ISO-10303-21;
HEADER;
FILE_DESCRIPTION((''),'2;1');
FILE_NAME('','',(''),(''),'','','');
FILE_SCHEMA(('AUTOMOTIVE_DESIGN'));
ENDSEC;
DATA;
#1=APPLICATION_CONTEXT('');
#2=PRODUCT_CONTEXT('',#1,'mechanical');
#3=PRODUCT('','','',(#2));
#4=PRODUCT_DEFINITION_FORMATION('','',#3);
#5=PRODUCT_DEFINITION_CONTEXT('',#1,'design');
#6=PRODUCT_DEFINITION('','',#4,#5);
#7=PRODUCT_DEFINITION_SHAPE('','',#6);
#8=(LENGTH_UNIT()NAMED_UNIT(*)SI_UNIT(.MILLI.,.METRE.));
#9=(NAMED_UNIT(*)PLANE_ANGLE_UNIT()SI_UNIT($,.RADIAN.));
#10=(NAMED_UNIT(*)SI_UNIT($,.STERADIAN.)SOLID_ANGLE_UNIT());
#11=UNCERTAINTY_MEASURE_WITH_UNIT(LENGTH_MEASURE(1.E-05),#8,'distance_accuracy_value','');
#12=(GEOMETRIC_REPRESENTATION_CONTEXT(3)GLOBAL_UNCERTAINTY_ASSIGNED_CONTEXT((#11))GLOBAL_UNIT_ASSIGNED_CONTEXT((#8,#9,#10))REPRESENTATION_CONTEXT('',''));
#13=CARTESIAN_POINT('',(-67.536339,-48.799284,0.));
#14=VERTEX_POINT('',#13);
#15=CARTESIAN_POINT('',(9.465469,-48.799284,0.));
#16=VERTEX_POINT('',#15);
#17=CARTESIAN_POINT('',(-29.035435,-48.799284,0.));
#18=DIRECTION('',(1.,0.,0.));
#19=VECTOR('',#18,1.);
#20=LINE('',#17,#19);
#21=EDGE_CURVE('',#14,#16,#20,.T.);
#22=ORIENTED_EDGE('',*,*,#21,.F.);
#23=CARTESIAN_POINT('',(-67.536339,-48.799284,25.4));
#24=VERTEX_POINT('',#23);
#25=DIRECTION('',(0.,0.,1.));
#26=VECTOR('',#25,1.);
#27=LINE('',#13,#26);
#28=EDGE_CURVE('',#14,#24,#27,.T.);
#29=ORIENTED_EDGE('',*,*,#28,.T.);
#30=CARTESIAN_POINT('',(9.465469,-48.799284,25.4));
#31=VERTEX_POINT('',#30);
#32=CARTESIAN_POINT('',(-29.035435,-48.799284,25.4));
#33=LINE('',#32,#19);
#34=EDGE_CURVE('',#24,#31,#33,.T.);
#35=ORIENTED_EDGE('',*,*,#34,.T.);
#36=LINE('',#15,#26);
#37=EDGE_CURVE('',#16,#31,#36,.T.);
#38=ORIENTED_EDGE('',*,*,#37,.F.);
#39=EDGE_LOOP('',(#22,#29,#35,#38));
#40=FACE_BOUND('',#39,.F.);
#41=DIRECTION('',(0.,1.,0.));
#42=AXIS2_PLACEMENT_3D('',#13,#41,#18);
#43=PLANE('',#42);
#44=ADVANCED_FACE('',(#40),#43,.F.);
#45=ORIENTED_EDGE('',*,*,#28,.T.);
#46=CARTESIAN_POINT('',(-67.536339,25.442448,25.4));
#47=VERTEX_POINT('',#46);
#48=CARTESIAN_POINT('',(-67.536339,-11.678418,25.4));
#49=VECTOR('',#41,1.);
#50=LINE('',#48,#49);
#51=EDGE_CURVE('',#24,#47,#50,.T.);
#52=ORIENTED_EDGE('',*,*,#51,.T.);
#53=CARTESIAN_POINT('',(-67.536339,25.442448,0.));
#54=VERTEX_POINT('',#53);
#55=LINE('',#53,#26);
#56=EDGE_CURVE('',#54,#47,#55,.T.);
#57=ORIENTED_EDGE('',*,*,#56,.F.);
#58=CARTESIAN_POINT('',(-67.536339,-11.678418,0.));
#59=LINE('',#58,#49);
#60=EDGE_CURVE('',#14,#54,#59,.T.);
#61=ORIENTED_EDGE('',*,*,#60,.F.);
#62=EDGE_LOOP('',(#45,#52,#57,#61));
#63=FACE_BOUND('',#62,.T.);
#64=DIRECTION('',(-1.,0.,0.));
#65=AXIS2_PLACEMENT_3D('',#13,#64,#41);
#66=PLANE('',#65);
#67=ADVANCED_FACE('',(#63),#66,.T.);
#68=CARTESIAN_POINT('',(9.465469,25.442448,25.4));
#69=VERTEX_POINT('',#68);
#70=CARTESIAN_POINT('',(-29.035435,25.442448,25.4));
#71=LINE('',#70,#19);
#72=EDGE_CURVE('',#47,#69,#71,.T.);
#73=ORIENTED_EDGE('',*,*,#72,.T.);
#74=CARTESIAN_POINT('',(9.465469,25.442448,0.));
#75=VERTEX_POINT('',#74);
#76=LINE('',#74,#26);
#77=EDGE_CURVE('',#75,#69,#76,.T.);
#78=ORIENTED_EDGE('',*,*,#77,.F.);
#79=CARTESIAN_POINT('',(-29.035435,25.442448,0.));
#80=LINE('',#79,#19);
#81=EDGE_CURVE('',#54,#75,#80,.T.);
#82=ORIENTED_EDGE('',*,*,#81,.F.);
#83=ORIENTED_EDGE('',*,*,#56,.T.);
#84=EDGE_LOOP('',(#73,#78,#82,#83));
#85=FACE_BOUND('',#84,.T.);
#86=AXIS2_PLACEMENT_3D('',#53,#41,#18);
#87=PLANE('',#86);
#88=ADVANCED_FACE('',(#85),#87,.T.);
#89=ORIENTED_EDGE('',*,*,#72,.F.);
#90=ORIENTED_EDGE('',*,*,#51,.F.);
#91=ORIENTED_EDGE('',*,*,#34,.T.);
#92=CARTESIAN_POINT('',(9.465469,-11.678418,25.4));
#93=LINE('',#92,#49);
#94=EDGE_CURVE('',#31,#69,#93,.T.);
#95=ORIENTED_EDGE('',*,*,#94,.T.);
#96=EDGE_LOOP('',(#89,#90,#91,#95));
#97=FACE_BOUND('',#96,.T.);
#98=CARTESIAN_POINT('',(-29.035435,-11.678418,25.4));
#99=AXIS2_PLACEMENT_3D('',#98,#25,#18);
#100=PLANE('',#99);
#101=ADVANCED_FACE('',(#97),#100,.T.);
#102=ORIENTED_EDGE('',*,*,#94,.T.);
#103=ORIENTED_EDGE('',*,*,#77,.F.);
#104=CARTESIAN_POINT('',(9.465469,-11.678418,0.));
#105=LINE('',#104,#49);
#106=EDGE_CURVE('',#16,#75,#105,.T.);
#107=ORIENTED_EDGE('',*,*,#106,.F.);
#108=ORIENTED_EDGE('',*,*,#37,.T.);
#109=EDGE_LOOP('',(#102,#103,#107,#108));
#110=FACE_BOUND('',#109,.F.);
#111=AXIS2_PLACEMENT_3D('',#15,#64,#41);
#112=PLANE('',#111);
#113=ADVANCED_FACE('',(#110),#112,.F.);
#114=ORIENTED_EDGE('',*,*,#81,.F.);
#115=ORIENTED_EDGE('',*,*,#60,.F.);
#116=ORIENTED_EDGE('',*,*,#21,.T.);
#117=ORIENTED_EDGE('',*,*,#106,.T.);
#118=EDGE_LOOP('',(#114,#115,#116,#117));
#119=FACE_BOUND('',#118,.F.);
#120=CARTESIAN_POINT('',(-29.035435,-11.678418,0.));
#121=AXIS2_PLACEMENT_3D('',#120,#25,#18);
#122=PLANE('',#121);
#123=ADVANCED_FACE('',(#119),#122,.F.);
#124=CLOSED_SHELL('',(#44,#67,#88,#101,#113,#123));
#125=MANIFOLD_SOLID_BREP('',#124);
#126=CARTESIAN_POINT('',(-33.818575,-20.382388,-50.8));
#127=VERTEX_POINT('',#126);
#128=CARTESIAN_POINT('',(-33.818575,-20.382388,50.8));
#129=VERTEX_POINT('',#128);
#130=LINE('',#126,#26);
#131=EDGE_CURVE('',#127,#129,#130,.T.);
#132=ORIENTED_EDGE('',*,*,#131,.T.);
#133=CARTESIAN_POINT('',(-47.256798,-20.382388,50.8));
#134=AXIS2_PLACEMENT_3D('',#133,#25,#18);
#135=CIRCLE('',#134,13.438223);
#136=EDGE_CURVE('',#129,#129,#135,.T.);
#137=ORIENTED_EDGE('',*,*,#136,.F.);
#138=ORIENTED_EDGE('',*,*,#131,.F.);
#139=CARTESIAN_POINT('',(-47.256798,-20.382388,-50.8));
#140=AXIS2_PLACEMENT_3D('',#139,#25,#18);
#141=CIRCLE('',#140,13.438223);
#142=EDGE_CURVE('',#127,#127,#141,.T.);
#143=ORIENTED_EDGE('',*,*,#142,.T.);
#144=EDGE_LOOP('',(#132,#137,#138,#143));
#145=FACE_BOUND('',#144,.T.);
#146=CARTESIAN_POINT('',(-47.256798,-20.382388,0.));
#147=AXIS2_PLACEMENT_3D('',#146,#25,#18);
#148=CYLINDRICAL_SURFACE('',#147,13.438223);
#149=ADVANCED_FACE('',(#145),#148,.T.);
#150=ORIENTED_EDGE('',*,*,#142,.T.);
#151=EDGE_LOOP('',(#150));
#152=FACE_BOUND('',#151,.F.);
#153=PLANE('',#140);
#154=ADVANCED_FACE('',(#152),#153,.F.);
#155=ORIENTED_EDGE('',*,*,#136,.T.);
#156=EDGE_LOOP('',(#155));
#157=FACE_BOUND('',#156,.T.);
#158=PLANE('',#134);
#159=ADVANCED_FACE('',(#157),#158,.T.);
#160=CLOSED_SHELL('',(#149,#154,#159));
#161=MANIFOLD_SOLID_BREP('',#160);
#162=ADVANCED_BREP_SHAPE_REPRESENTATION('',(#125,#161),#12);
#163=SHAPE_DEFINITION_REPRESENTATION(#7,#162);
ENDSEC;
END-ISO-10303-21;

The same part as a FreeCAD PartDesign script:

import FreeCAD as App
import Part
import Sketcher

V = App.Vector
Q = App.Units.Quantity

doc = App.newDocument("Part")
params = doc.addObject("Spreadsheet::Sheet", "Params")
for row, (alias, value) in enumerate([
    ("pad1_length", "1 in"),
    ("pad2_length", "2 in"),
    ("pad2_length2", "2 in"),
], start=1):
    params.set(f"A{row}", alias)
    params.set(f"B{row}", "=" + value)
    params.setAlias(f"B{row}", alias)

body = doc.addObject("PartDesign::Body", "Body")

# Sketch on XY plane
sketch1 = body.newObject("Sketcher::SketchObject", "Sketch")
sketch1.AttachmentSupport = (doc.getObject("XY_Plane"), [""])
sketch1.MapMode = "FlatFace"
sketch1.addGeometry([
    Part.LineSegment(V(-67.536339, 25.442448, 0), V(-67.536339, -48.799284, 0)),
    Part.LineSegment(V(-67.536339, -48.799284, 0), V(9.465469, -48.799284, 0)),
    Part.LineSegment(V(9.465469, -48.799284, 0), V(9.465469, 25.442448, 0)),
    Part.LineSegment(V(9.465469, 25.442448, 0), V(-67.536339, 25.442448, 0)),
], False)
sketch1.addConstraint([
    Sketcher.Constraint("Coincident", 0, 2, 1, 1),
    Sketcher.Constraint("Coincident", 1, 2, 2, 1),
    Sketcher.Constraint("Coincident", 2, 2, 3, 1),
    Sketcher.Constraint("Coincident", 3, 2, 0, 1),
    Sketcher.Constraint("Vertical", 0),
    Sketcher.Constraint("Horizontal", 1),
    Sketcher.Constraint("Vertical", 2),
    Sketcher.Constraint("Horizontal", 3),
    Sketcher.Constraint("DistanceX", 1, 1, 1, 2, Q("77.001809 mm")),
    Sketcher.Constraint("DistanceY", 0, 2, 0, 1, Q("74.241732 mm")),
    Sketcher.Constraint("DistanceX", 0, 2, -1, 1, Q("67.536339 mm")),
    Sketcher.Constraint("DistanceY", 0, 2, -1, 1, Q("48.799284 mm")),
])
pad1 = body.newObject("PartDesign::Pad", "Pad")
pad1.Profile = sketch1
pad1.setExpression("Length", "Params.pad1_length")
body2 = doc.addObject("PartDesign::Body", "Body001")

# Sketch on XY plane
sketch2 = body2.newObject("Sketcher::SketchObject", "Sketch001")
sketch2.AttachmentSupport = (doc.getObject("XY_Plane001"), [""])
sketch2.MapMode = "FlatFace"
sketch2.addGeometry(Part.Circle(V(-47.256798, -20.382388, 0), V(0, 0, 1), 13.438223), False)
sketch2.addConstraint([
    Sketcher.Constraint("Diameter", 0, Q("26.876446 mm")),
    Sketcher.Constraint("DistanceX", 0, 3, -1, 1, Q("47.256798 mm")),
    Sketcher.Constraint("DistanceY", 0, 3, -1, 1, Q("20.382388 mm")),
])
pad2 = body2.newObject("PartDesign::Pad", "Pad001")
pad2.Profile = sketch2
pad2.Type = "TwoLengths"
pad2.setExpression("Length", "Params.pad2_length")
pad2.setExpression("Length2", "Params.pad2_length2")

doc.recompute()
